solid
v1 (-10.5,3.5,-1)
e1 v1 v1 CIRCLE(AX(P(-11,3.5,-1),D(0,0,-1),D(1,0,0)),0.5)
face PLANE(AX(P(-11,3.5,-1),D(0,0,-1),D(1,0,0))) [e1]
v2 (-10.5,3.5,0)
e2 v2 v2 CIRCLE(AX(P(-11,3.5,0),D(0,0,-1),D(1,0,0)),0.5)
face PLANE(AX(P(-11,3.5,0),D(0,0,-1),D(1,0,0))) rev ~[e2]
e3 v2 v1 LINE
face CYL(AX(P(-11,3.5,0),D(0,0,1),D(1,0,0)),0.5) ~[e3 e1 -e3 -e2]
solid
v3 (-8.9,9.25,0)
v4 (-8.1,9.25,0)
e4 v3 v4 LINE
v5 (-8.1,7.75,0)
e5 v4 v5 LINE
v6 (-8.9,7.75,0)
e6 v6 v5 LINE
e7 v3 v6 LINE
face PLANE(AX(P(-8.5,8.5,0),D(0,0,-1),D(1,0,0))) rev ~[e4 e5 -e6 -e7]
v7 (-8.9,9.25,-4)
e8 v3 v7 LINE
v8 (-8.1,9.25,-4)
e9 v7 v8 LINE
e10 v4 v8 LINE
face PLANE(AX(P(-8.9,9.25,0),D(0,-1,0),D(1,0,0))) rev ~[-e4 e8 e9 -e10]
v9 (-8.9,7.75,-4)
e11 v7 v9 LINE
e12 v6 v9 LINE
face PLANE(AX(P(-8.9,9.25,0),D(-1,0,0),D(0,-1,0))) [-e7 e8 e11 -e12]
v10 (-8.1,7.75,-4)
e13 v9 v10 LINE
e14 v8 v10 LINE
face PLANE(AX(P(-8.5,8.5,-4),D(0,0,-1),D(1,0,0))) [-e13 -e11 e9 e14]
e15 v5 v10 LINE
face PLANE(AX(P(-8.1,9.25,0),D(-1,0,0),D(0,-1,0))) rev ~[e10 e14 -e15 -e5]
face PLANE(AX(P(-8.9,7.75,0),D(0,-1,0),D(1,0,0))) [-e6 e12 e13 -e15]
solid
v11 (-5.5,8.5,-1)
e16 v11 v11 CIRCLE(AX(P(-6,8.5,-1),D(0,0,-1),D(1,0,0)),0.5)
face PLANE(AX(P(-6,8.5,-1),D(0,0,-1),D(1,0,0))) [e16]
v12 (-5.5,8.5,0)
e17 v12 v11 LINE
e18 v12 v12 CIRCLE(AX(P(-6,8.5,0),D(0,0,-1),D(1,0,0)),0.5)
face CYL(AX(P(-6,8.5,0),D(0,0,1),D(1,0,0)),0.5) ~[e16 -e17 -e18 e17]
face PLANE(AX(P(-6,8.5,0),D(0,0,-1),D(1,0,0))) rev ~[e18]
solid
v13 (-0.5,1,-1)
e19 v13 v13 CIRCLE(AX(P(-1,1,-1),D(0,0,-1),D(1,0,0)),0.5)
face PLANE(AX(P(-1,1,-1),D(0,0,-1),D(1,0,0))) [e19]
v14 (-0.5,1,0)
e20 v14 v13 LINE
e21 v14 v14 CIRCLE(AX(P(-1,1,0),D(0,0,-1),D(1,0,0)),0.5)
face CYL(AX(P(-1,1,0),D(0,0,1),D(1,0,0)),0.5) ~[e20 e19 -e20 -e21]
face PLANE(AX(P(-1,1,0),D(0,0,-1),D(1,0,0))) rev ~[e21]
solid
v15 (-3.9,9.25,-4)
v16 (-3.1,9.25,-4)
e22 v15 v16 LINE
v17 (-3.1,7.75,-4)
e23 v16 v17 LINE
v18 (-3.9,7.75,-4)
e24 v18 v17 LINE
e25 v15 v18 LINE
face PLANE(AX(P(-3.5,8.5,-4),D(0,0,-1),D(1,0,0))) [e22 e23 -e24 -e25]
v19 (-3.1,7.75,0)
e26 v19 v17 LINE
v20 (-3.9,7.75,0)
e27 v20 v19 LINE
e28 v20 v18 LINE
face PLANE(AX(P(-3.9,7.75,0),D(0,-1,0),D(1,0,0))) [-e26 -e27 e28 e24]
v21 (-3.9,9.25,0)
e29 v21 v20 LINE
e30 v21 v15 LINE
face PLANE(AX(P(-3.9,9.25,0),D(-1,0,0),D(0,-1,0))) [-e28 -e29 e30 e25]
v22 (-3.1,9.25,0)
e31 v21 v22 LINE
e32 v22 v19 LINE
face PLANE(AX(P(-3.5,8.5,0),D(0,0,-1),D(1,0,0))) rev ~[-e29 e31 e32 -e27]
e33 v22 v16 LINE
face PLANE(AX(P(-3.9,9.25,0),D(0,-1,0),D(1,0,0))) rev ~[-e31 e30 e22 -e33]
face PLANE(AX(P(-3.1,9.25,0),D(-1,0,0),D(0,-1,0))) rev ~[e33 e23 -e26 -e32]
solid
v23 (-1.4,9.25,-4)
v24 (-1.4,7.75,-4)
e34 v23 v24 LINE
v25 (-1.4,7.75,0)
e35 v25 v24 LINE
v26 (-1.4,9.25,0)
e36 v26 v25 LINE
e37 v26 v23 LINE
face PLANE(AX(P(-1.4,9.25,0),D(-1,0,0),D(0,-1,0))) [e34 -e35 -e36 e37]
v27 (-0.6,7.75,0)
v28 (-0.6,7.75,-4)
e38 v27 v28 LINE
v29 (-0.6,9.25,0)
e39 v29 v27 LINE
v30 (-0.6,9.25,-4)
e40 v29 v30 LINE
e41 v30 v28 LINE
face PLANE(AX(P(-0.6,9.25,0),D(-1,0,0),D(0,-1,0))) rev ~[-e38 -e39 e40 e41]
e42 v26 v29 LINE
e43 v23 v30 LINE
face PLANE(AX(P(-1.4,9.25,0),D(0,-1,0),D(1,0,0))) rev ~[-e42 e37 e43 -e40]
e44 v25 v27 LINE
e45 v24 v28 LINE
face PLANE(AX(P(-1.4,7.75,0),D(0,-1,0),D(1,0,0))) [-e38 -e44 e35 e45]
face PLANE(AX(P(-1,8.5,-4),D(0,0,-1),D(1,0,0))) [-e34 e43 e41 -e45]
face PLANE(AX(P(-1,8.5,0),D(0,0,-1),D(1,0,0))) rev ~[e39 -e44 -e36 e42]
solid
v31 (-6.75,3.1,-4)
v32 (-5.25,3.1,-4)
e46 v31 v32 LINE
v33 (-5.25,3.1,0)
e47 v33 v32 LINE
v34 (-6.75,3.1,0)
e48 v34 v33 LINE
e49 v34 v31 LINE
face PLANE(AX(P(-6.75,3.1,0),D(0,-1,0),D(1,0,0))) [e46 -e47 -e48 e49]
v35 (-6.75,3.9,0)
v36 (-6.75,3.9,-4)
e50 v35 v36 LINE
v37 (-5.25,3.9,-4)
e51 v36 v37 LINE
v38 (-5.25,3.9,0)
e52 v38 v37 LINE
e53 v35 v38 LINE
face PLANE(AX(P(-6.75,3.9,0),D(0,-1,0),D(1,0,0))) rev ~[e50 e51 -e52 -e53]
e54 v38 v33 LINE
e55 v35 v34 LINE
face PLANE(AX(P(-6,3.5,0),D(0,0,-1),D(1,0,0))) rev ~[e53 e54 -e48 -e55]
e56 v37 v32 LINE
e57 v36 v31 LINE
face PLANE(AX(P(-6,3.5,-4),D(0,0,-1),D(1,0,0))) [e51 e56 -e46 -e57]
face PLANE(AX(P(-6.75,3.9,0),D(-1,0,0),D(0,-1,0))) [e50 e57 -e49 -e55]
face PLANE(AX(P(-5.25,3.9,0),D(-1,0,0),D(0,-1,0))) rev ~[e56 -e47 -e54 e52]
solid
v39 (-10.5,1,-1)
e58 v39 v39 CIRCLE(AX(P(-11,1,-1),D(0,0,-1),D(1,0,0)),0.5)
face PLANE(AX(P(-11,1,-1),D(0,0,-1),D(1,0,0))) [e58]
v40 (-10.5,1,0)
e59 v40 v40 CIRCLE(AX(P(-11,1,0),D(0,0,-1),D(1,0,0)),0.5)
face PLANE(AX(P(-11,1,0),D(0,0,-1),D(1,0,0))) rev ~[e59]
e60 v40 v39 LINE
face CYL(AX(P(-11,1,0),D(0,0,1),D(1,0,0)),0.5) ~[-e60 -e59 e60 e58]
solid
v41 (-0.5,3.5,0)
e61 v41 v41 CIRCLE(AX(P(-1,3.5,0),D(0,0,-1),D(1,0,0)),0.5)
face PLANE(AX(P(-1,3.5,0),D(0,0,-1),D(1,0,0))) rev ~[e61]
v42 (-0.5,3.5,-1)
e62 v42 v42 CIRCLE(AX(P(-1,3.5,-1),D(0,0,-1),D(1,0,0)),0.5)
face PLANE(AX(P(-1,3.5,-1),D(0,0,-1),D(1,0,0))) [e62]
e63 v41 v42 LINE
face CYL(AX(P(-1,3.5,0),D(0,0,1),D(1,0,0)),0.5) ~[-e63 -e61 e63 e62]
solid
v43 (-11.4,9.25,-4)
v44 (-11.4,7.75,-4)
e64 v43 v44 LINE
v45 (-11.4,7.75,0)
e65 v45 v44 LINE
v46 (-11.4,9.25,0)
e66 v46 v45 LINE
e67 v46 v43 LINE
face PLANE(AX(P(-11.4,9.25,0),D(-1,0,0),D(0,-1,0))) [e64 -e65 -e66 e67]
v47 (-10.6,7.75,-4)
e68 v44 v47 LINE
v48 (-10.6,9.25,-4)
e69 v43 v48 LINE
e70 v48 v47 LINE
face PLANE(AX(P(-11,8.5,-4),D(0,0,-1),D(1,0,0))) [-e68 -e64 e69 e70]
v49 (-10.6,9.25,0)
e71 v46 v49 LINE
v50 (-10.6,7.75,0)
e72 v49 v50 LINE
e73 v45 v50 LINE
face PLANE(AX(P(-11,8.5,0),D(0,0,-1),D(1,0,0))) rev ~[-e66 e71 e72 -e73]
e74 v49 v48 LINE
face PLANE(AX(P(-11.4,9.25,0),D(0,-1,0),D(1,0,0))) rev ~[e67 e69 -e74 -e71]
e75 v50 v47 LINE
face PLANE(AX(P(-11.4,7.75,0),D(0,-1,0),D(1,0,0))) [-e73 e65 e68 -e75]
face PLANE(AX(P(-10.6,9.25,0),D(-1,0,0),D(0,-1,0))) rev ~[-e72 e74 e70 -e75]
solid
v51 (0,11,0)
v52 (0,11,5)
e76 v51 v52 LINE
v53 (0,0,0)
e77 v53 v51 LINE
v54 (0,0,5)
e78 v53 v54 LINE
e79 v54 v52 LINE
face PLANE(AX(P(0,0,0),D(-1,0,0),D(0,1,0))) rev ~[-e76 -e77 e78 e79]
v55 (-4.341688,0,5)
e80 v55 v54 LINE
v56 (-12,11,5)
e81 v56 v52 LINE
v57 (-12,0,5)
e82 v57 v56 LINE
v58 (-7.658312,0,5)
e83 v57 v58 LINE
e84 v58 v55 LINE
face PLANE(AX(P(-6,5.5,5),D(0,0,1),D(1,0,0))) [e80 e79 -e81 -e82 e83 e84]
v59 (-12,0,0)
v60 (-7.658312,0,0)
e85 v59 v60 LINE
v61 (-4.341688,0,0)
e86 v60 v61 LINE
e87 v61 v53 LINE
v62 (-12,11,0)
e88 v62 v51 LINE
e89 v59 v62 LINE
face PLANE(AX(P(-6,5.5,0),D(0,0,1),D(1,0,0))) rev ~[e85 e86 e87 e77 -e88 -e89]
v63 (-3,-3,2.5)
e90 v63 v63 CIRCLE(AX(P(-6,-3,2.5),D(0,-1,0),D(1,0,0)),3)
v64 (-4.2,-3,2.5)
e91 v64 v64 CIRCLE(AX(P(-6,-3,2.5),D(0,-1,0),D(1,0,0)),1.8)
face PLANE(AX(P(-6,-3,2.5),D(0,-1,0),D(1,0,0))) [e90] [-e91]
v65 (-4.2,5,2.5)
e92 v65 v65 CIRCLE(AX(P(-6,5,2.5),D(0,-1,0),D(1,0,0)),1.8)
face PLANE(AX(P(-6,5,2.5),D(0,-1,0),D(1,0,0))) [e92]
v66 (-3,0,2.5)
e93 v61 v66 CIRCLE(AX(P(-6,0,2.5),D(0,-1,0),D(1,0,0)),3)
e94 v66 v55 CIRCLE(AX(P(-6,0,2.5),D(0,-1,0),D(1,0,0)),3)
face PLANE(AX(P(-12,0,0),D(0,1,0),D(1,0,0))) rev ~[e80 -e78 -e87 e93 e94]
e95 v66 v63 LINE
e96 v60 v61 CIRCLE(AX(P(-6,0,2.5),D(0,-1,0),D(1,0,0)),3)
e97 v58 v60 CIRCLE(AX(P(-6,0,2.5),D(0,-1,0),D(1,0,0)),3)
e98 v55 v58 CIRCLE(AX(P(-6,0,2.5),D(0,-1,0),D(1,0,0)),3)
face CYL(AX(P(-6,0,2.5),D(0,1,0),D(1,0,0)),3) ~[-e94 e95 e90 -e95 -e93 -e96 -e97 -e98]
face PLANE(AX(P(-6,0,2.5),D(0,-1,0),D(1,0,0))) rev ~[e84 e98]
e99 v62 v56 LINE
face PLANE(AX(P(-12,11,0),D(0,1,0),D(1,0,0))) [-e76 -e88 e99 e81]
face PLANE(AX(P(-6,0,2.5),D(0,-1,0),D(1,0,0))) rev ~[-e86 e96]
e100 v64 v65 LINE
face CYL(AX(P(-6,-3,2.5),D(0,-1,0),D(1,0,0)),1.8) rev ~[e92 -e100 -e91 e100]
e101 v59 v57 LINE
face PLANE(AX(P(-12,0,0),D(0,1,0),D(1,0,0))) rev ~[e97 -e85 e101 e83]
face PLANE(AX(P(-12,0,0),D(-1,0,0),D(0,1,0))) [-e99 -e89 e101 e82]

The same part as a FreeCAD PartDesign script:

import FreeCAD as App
import Part
import Sketcher
from FreeCAD import Vector
Q = App.Units.Quantity


def add_polygon(sketch, points):
    """Adds a closed chain of lines whose ends are joined by coincident constraints."""
    first, n = sketch.GeometryCount, len(points)
    for a, b in zip(points, points[1:] + points[:1]):
        sketch.addGeometry(Part.LineSegment(App.Vector(*a, 0), App.Vector(*b, 0)), False)
    for i in range(n):
        sketch.addConstraint(Sketcher.Constraint("Coincident", first + i, 2, first + (i + 1) % n, 1))

doc = App.newDocument("Part")
params = doc.addObject("Spreadsheet::Sheet", "Params")
for row, (alias, value) in enumerate([
    ("sketch1_diameter", "1 mm"),
    ("pad1_length", "1 mm"),
    ("sketch2_width", "0.8 mm"),
    ("sketch2_width2", "1.5 mm"),
    ("pad2_length", "4 mm"),
    ("sketch3_width", "12 mm"),
    ("sketch3_height", "11 mm"),
    ("pad3_length", "5 mm"),
    ("sketch4_diameter", "6 mm"),
    ("pad4_length", "3 mm"),
    ("sketch5_diameter", "3.6 mm"),
    ("pocket1_length", "8 mm"),
], start=1):
    params.set(f"A{row}", alias)
    params.set(f"B{row}", "=" + value)
    params.setAlias(f"B{row}", alias)

body = doc.addObject("PartDesign::Body", "Body")
body.AllowCompound = True

# Sketch on XY plane
sketch1 = body.newObject("Sketcher::SketchObject", "Sketch")
sketch1.AttachmentSupport = (doc.getObject("XY_Plane"), [""])
sketch1.MapMode = "FlatFace"
sketch1.addGeometry([
    Part.Circle(Vector(-11, 1, 0), Vector(0, 0, 1), 0.5),  # 0
    Part.Circle(Vector(-1, 1, 0), Vector(0, 0, 1), 0.5),  # 1
    Part.Circle(Vector(-11, 3.5, 0), Vector(0, 0, 1), 0.5),  # 2
    Part.Circle(Vector(-1, 3.5, 0), Vector(0, 0, 1), 0.5),  # 3
    Part.Circle(Vector(-6, 8.5, 0), Vector(0, 0, 1), 0.5),  # 4
], False)
sketch1.addConstraint([
    Sketcher.Constraint("Equal", 0, 1),
    Sketcher.Constraint("Equal", 1, 2),
    Sketcher.Constraint("Equal", 2, 3),
    Sketcher.Constraint("Equal", 3, 4),
    Sketcher.Constraint("Horizontal", 0, 3, 1, 3),
    Sketcher.Constraint("Horizontal", 2, 3, 3, 3),
    Sketcher.Constraint("Vertical", 0, 3, 2, 3),
    Sketcher.Constraint("Vertical", 1, 3, 3, 3),
    Sketcher.Constraint("Diameter", 0, Q("1 mm")),
    Sketcher.Constraint("DistanceX", 0, 3, -1, 1, Q("11 mm")),
    Sketcher.Constraint("DistanceY", -1, 1, 0, 3, Q("1 mm")),
    Sketcher.Constraint("DistanceX", 1, 3, -1, 1, Q("1 mm")),
    Sketcher.Constraint("DistanceX", 4, 3, -1, 1, Q("6 mm")),
    Sketcher.Constraint("DistanceY", 2, 3, 4, 3, Q("5 mm")),
    Sketcher.Constraint("DistanceY", -1, 1, 2, 3, Q("3.5 mm")),
])
sketch1.setExpression("Constraints[8]", "Params.sketch1_diameter")
pad1 = body.newObject("PartDesign::Pad", "Pad")
pad1.Profile = sketch1
pad1.setExpression("Length", "Params.pad1_length")
pad1.Reversed = True
body2 = doc.addObject("PartDesign::Body", "Body001")
body2.AllowCompound = True

# Sketch on XY plane
sketch2 = body2.newObject("Sketcher::SketchObject", "Sketch001")
sketch2.AttachmentSupport = (doc.getObject("XY_Plane001"), [""])
sketch2.MapMode = "FlatFace"
add_polygon(sketch2, [(-11.4, 7.8), (-11.4, 9.2), (-10.6, 9.2), (-10.6, 7.8)])  # lines 0-3
add_polygon(sketch2, [(-8.9, 7.8), (-8.9, 9.2), (-8.1, 9.2), (-8.1, 7.8)])  # lines 4-7
add_polygon(sketch2, [(-3.9, 7.8), (-3.9, 9.2), (-3.1, 9.2), (-3.1, 7.8)])  # lines 8-11
add_polygon(sketch2, [(-1.4, 7.8), (-1.4, 9.2), (-0.6, 9.2), (-0.6, 7.8)])  # lines 12-15
add_polygon(sketch2, [(-6.8, 3.1), (-6.8, 3.9), (-5.2, 3.9), (-5.2, 3.1)])  # lines 16-19
sketch2.addConstraint([
    Sketcher.Constraint("Vertical", 0),
    Sketcher.Constraint("Horizontal", 1),
    Sketcher.Constraint("Vertical", 2),
    Sketcher.Constraint("Horizontal", 3),
    Sketcher.Constraint("Vertical", 4),
    Sketcher.Constraint("Horizontal", 5),
    Sketcher.Constraint("Vertical", 6),
    Sketcher.Constraint("Horizontal", 7),
    Sketcher.Constraint("Vertical", 8),
    Sketcher.Constraint("Horizontal", 9),
    Sketcher.Constraint("Vertical", 10),
    Sketcher.Constraint("Horizontal", 11),
    Sketcher.Constraint("Vertical", 12),
    Sketcher.Constraint("Horizontal", 13),
    Sketcher.Constraint("Vertical", 14),
    Sketcher.Constraint("Horizontal", 15),
    Sketcher.Constraint("Vertical", 16),
    Sketcher.Constraint("Horizontal", 17),
    Sketcher.Constraint("Vertical", 18),
    Sketcher.Constraint("Horizontal", 19),
    Sketcher.Constraint("Horizontal", 1, 2, 4, 2),
    Sketcher.Constraint("Horizontal", 3, 2, 6, 2),
    Sketcher.Constraint("Horizontal", 5, 2, 8, 2),
    Sketcher.Constraint("Horizontal", 7, 2, 10, 2),
    Sketcher.Constraint("Horizontal", 9, 2, 12, 2),
    Sketcher.Constraint("Horizontal", 11, 2, 14, 2),
    Sketcher.Constraint("Equal", 3, 5),
    Sketcher.Constraint("Equal", 7, 9),
    Sketcher.Constraint("Equal", 11, 13),
    Sketcher.Constraint("Equal", 19, 0),
    Sketcher.Constraint("Equal", 15, 16),
    Sketcher.Constraint("DistanceX", 1, 1, 1, 2, Q("0.8 mm")),
    Sketcher.Constraint("DistanceX", 17, 1, 17, 2, Q("1.5 mm")),
    Sketcher.Constraint("DistanceX", 4, 2, 8, 2, Q("5 mm")),
    Sketcher.Constraint("DistanceX", 0, 2, -1, 1, Q("11.4 mm")),
    Sketcher.Constraint("DistanceX", 4, 2, -1, 1, Q("8.9 mm")),
    Sketcher.Constraint("DistanceX", 12, 2, -1, 1, Q("1.4 mm")),
    Sketcher.Constraint("DistanceY", -1, 1, 16, 2, Q("3.9 mm")),
    Sketcher.Constraint("DistanceY", -1, 1, 0, 2, Q("9.25 mm")),
    Sketcher.Constraint("DistanceX", 16, 2, -1, 1, Q("6.75 mm")),
])
sketch2.setExpression("Constraints[51]", "Params.sketch2_width")
sketch2.setExpression("Constraints[52]", "Params.sketch2_width2")
pad2 = body2.newObject("PartDesign::Pad", "Pad001")
pad2.Profile = sketch2
pad2.setExpression("Length", "Params.pad2_length")
pad2.Reversed = True
body3 = doc.addObject("PartDesign::Body", "Body002")

# Sketch on XY plane
sketch3 = body3.newObject("Sketcher::SketchObject", "Sketch002")
sketch3.AttachmentSupport = (doc.getObject("XY_Plane002"), [""])
sketch3.MapMode = "FlatFace"
add_polygon(sketch3, [(-12, 11), (-12, 0), (0, 0), (0, 11)])  # lines 0-3
sketch3.addConstraint([
    Sketcher.Constraint("Vertical", 0),
    Sketcher.Constraint("Horizontal", 1),
    Sketcher.Constraint("Vertical", 2),
    Sketcher.Constraint("Horizontal", 3),
    Sketcher.Constraint("Coincident", 1, 2, -1, 1),
    Sketcher.Constraint("DistanceX", 1, 1, 1, 2, Q("12 mm")),
    Sketcher.Constraint("DistanceY", 0, 2, 0, 1, Q("11 mm")),
])
sketch3.setExpression("Constraints[9]", "Params.sketch3_width")
sketch3.setExpression("Constraints[10]", "Params.sketch3_height")
pad3 = body3.newObject("PartDesign::Pad", "Pad002")
pad3.Profile = sketch3
pad3.setExpression("Length", "Params.pad3_length")

# Sketch on XZ plane
sketch4 = body3.newObject("Sketcher::SketchObject", "Sketch003")
sketch4.AttachmentSupport = (doc.getObject("XZ_Plane002"), [""])
sketch4.MapMode = "FlatFace"
sketch4.addGeometry(Part.Circle(Vector(-6, 2.5, 0), Vector(0, 0, 1), 3), False)
sketch4.addConstraint([
    Sketcher.Constraint("Diameter", 0, Q("6 mm")),
    Sketcher.Constraint("DistanceX", 0, 3, -1, 1, Q("6 mm")),
    Sketcher.Constraint("DistanceY", -1, 1, 0, 3, Q("2.5 mm")),
])
sketch4.setExpression("Constraints[0]", "Params.sketch4_diameter")
pad4 = body3.newObject("PartDesign::Pad", "Pad003")
pad4.Profile = sketch4
pad4.setExpression("Length", "Params.pad4_length")

# Sketch on XZ plane
sketch5 = body3.newObject("Sketcher::SketchObject", "Sketch004")
sketch5.AttachmentSupport = (doc.getObject("XZ_Plane002"), [""])
sketch5.MapMode = "FlatFace"
sketch5.AttachmentOffset = App.Placement(Vector(0, 0, 3), App.Rotation())
sketch5.addGeometry(Part.Circle(Vector(-6, 2.5, 0), Vector(0, 0, 1), 1.8), False)
sketch5.addConstraint([
    Sketcher.Constraint("Diameter", 0, Q("3.6 mm")),
    Sketcher.Constraint("DistanceX", 0, 3, -1, 1, Q("6 mm")),
    Sketcher.Constraint("DistanceY", -1, 1, 0, 3, Q("2.5 mm")),
])
sketch5.setExpression("Constraints[0]", "Params.sketch5_diameter")
pocket1 = body3.newObject("PartDesign::Pocket", "Pocket")
pocket1.Profile = sketch5
pocket1.setExpression("Length", "Params.pocket1_length")

doc.recompute()
